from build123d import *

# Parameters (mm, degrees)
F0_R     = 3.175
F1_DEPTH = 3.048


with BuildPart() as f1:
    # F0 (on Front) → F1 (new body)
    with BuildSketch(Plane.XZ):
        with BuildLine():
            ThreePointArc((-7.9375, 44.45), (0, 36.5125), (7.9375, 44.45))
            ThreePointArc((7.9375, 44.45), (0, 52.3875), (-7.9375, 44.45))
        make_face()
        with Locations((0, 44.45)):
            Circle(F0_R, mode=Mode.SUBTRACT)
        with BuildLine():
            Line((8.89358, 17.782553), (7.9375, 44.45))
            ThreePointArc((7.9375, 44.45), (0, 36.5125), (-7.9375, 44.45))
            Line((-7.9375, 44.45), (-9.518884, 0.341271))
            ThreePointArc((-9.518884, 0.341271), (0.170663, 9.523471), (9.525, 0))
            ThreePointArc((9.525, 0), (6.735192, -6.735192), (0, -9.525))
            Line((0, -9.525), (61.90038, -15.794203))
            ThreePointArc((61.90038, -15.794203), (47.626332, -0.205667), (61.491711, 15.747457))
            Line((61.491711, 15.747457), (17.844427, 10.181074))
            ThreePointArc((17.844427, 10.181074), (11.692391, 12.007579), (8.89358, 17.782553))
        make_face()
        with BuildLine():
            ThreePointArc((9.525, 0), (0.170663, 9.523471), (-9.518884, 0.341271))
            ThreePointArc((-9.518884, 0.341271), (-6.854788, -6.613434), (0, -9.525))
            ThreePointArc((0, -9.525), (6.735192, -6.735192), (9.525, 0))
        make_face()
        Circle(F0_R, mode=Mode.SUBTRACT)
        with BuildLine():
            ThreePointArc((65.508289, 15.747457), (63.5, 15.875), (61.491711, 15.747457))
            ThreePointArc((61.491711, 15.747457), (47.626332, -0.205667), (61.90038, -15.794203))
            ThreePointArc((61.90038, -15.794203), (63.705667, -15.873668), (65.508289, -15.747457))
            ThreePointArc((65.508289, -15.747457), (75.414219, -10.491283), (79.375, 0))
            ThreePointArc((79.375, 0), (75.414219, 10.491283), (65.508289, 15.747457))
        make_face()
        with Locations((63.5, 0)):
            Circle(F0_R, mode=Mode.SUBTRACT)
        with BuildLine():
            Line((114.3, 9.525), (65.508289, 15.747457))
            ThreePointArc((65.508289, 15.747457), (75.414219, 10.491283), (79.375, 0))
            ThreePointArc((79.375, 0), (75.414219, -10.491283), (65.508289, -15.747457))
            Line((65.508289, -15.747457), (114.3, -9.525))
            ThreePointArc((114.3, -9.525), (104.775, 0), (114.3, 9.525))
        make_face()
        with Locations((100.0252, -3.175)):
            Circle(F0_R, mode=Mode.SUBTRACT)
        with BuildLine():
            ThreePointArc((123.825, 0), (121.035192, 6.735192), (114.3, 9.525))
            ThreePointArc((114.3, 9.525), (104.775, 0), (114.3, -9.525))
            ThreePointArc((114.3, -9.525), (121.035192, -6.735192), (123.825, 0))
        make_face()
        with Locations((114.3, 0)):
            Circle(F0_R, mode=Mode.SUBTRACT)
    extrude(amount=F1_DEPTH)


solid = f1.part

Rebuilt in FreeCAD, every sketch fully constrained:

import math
import FreeCAD as App
import Part
import Sketcher
Q = App.Units.Quantity

doc = App.newDocument("Part")
body = doc.addObject("PartDesign::Body", "Body")

sketch1 = doc.addObject("Sketcher::SketchObject", "Sketch")
body.addObject(sketch1)
sketch1.AttachmentSupport = (doc.XZ_Plane, [""])
sketch1.MapMode = "FlatFace"
sketch1.addGeometry(Part.ArcOfCircle(Part.Circle(App.Vector(0, 44.45, 0), App.Vector(0, 0, 1), 7.9375), math.radians(0), math.radians(180)), False)
sketch1.addGeometry(Part.LineSegment(App.Vector(-7.9375, 44.45, 0), App.Vector(-9.518884, 0.341271, 0)), False)
sketch1.addGeometry(Part.ArcOfCircle(Part.Circle(App.Vector(-0.000001, -0.000001, 0), App.Vector(0, 0, 1), 9.524999), math.radians(177.946706), math.radians(270.000004)), False)
sketch1.addGeometry(Part.LineSegment(App.Vector(0, -9.525, 0), App.Vector(61.90038, -15.794203, 0)), False)
sketch1.addGeometry(Part.ArcOfCircle(Part.Circle(App.Vector(63.5, -0.000025, 0), App.Vector(0, 0, 1), 15.874976), math.radians(-95.783143), math.radians(-82.732231)), False)
sketch1.addGeometry(Part.LineSegment(App.Vector(65.508289, -15.747457, 0), App.Vector(114.3, -9.525, 0)), False)
sketch1.addGeometry(Part.ArcOfCircle(Part.Circle(App.Vector(114.3, 0, 0), App.Vector(0, 0, 1), 9.525), math.radians(-89.999998), math.radians(-0.000002)), False)
sketch1.addGeometry(Part.ArcOfCircle(Part.Circle(App.Vector(114.3, 0, 0), App.Vector(0, 0, 1), 9.525), math.radians(0.000002), math.radians(89.999998)), False)
sketch1.addGeometry(Part.LineSegment(App.Vector(114.3, 9.525, 0), App.Vector(65.508289, 15.747457, 0)), False)
sketch1.addGeometry(Part.ArcOfCircle(Part.Circle(App.Vector(63.5, -0.000007, 0), App.Vector(0, 0, 1), 15.875007), math.radians(82.732247), math.radians(97.267753)), False)
sketch1.addGeometry(Part.LineSegment(App.Vector(61.491711, 15.747457, 0), App.Vector(17.844427, 10.181074, 0)), False)
sketch1.addGeometry(Part.ArcOfCircle(Part.Circle(App.Vector(16.838676, 18.067401, 0), App.Vector(0, 0, 1), 7.9502), math.radians(-177.946711), math.radians(-82.732242)), False)
sketch1.addGeometry(Part.LineSegment(App.Vector(8.89358, 17.782553, 0), App.Vector(7.9375, 44.45, 0)), False)
sketch1.addGeometry(Part.Circle(App.Vector(0, 0, 0), App.Vector(0, 0, 1), 3.175), False)
sketch1.addGeometry(Part.Circle(App.Vector(63.5, 0, 0), App.Vector(0, 0, 1), 3.175), False)
sketch1.addGeometry(Part.Circle(App.Vector(100.0252, -3.175, 0), App.Vector(0, 0, 1), 3.175), False)
sketch1.addGeometry(Part.Circle(App.Vector(114.3, 0, 0), App.Vector(0, 0, 1), 3.175), False)
sketch1.addGeometry(Part.Circle(App.Vector(0, 44.45, 0), App.Vector(0, 0, 1), 3.175), False)
sketch1.addConstraint(Sketcher.Constraint("Coincident", 0, 2, 1, 1))
sketch1.addConstraint(Sketcher.Constraint("Coincident", 1, 2, 2, 1))
sketch1.addConstraint(Sketcher.Constraint("Coincident", 2, 2, 3, 1))
sketch1.addConstraint(Sketcher.Constraint("Coincident", 3, 2, 4, 1))
sketch1.addConstraint(Sketcher.Constraint("Coincident", 4, 2, 5, 1))
sketch1.addConstraint(Sketcher.Constraint("Coincident", 5, 2, 6, 1))
sketch1.addConstraint(Sketcher.Constraint("Coincident", 6, 2, 7, 1))
sketch1.addConstraint(Sketcher.Constraint("Coincident", 7, 2, 8, 1))
sketch1.addConstraint(Sketcher.Constraint("Coincident", 8, 2, 9, 1))
sketch1.addConstraint(Sketcher.Constraint("Coincident", 9, 2, 10, 1))
sketch1.addConstraint(Sketcher.Constraint("Coincident", 10, 2, 11, 2))
sketch1.addConstraint(Sketcher.Constraint("Coincident", 11, 1, 12, 1))
sketch1.addConstraint(Sketcher.Constraint("Coincident", 12, 2, 0, 1))
sketch1.addConstraint(Sketcher.Constraint("Coincident", 2, 3, -1, 1))
sketch1.addConstraint(Sketcher.Constraint("Coincident", 13, 3, -1, 1))
sketch1.addConstraint(Sketcher.Constraint("Coincident", 7, 3, 6, 3))
sketch1.addConstraint(Sketcher.Constraint("Coincident", 14, 3, 9, 3))
sketch1.addConstraint(Sketcher.Constraint("Coincident", 16, 3, 6, 3))
sketch1.addConstraint(Sketcher.Constraint("Coincident", 17, 3, 0, 3))
sketch1.addConstraint(Sketcher.Constraint("PointOnObject", 0, 3, -2))
sketch1.addConstraint(Sketcher.Constraint("PointOnObject", 6, 3, -1))
sketch1.addConstraint(Sketcher.Constraint("PointOnObject", 14, 3, -1))
sketch1.addConstraint(Sketcher.Constraint("PointOnObject", 2, 2, -2))
sketch1.addConstraint(Sketcher.Constraint("PointOnObject", 6, 2, -1))
sketch1.addConstraint(Sketcher.Constraint("Diameter", 13, Q("0.25 in")))
sketch1.addConstraint(Sketcher.Constraint("Diameter", 14, Q("0.25 in")))
sketch1.addConstraint(Sketcher.Constraint("Diameter", 15, Q("0.25 in")))
sketch1.addConstraint(Sketcher.Constraint("Diameter", 16, Q("0.25 in")))
sketch1.addConstraint(Sketcher.Constraint("Diameter", 17, Q("0.25 in")))
sketch1.addConstraint(Sketcher.Constraint("Radius", 0, Q("0.3125 in")))
sketch1.addConstraint(Sketcher.Constraint("Radius", 2, Q("0.375 in")))
sketch1.addConstraint(Sketcher.Constraint("Radius", 6, Q("0.375 in")))
sketch1.addConstraint(Sketcher.Constraint("Radius", 11, Q("0.313 in")))
sketch1.addConstraint(Sketcher.Constraint("DistanceX", 4, 3, 6, 3, Q("2 in")))
sketch1.addConstraint(Sketcher.Constraint("DistanceX", 9, 3, 7, 3, Q("2 in")))
sketch1.addConstraint(Sketcher.Constraint("DistanceX", -1, 1, 4, 3, Q("2.5 in")))
sketch1.addConstraint(Sketcher.Constraint("DistanceX", -1, 1, 5, 2, Q("4.5 in")))
sketch1.addConstraint(Sketcher.Constraint("DistanceX", -1, 1, 7, 2, Q("4.5 in")))
sketch1.addConstraint(Sketcher.Constraint("DistanceY", -1, 1, 0, 3, Q("1.75 in")))
sketch1.addConstraint(Sketcher.Constraint("DistanceY", -1, 1, 0, 2, Q("1.75 in")))
sketch1.addConstraint(Sketcher.Constraint("DistanceY", -1, 1, 12, 2, Q("1.75 in")))
sketch1.addConstraint(Sketcher.Constraint("DistanceY", 5, 2, 15, 3, Q("0.25 in")))
sketch1.addConstraint(Sketcher.Constraint("DistanceX", -1, 1, 15, 3, Q("3.938 in")))
sketch1.addConstraint(Sketcher.Constraint("Radius", 4, Q("15.874976 mm")))
sketch1.addConstraint(Sketcher.Constraint("Radius", 9, Q("15.875007 mm")))
sketch1.addConstraint(Sketcher.Constraint("DistanceX", 1, 2, 11, 1, Q("0.7249002 in")))
sketch1.addConstraint(Sketcher.Constraint("DistanceY", -1, 1, 11, 3, Q("18.067401 mm")))
sketch1.addConstraint(Sketcher.Constraint("Distance", 3, Q("62.217039 mm")))
sketch1.addConstraint(Sketcher.Constraint("Distance", 5, Q("49.186889 mm")))
sketch1.addConstraint(Sketcher.Constraint("Distance", 8, Q("49.186889 mm")))
sketch1.addConstraint(Sketcher.Constraint("Distance", 12, Q("26.68458 mm")))
sketch1.addConstraint(Sketcher.Constraint("DistanceY", -1, 1, 1, 2, Q("0.341271 mm")))
sketch1.addConstraint(Sketcher.Constraint("DistanceX", -1, 1, 3, 2, Q("61.90038 mm")))
sketch1.addConstraint(Sketcher.Constraint("DistanceX", -1, 1, 9, 2, Q("61.491711 mm")))
sketch1.addConstraint(Sketcher.Constraint("DistanceX", 11, 3, 10, 2, Q("1.005751 mm")))
pad1 = doc.addObject("PartDesign::Pad", "Pad")
body.addObject(pad1)
pad1.Profile = sketch1
pad1.Length = Q("0.12 in")

doc.recompute()
